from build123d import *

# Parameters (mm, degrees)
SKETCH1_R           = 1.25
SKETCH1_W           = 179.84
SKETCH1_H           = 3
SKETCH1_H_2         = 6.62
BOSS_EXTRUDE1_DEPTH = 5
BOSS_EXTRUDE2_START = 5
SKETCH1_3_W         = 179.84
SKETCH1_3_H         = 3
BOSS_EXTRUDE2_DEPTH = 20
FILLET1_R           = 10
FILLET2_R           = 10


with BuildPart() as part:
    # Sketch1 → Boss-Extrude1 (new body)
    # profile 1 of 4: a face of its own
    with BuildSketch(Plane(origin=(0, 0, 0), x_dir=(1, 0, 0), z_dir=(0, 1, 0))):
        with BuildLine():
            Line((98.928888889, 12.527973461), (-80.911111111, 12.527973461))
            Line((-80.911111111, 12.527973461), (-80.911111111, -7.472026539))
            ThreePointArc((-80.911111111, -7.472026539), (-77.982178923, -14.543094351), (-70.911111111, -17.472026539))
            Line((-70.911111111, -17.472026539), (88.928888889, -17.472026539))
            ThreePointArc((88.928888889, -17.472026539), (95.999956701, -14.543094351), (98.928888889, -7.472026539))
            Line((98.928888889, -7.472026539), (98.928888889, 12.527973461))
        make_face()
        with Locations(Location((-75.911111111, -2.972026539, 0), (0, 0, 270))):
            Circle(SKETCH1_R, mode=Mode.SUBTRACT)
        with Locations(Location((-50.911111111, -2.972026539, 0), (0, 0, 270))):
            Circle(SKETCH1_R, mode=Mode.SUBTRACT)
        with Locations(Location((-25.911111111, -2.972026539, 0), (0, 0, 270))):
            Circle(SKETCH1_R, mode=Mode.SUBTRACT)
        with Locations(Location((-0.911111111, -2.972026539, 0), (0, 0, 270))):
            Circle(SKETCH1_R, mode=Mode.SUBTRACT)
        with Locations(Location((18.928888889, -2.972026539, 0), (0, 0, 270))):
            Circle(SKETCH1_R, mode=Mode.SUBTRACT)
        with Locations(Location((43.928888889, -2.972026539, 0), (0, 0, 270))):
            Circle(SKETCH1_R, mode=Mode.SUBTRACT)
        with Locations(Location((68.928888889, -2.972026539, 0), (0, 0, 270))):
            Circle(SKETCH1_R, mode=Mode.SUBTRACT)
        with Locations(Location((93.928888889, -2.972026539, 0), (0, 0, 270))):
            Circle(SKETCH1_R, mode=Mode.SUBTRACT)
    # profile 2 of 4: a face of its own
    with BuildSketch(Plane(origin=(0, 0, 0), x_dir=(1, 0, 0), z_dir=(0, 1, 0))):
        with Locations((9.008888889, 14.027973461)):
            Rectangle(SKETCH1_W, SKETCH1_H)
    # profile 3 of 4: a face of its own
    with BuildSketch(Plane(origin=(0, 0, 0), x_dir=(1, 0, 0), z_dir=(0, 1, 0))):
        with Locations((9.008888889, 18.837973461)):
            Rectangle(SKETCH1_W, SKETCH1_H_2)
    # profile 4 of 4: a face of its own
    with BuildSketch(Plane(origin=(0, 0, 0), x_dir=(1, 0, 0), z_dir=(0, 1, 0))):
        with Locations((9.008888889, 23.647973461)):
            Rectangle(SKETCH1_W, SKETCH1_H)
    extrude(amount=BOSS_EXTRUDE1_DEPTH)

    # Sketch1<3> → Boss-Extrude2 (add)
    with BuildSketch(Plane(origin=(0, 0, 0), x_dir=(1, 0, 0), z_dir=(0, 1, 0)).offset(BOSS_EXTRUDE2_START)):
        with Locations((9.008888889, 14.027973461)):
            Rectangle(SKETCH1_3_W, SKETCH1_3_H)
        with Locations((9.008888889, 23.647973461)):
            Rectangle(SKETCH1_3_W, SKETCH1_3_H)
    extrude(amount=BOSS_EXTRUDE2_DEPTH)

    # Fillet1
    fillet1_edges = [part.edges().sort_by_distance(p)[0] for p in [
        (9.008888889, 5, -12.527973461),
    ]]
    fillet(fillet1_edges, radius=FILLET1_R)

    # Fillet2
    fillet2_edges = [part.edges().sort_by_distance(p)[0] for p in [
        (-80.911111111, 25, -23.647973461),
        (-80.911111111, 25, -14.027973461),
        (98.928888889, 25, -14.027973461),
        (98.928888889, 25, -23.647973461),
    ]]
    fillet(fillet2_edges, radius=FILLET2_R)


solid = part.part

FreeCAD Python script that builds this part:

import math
import FreeCAD as App
import Part
import Sketcher
from FreeCAD import Vector
Q = App.Units.Quantity


def edges_at(feature, points):
    """Names of the edges that pass closest to the given points."""
    edges = feature.Shape.Edges
    near = lambda p: min(range(len(edges)), key=lambda i: edges[i].distToShape(Part.Vertex(*p))[0])
    return sorted({f"Edge{near(p) + 1}" for p in points})

doc = App.newDocument("Part")
body = doc.addObject("PartDesign::Body", "Body")

sketch1 = body.newObject("Sketcher::SketchObject", "Sketch")
sketch1.AttachmentSupport = (doc.getObject("XZ_Plane"), [""])
sketch1.MapMode = "FlatFace"
sketch1.addGeometry([
    Part.LineSegment(Vector(98.928889, 7.472027, 0), Vector(98.928889, -25.147973, 0)),
    Part.LineSegment(Vector(98.928889, -25.147973, 0), Vector(-80.911111, -25.147973, 0)),
    Part.LineSegment(Vector(-80.911111, -25.147973, 0), Vector(-80.911111, 7.472027, 0)),
    Part.ArcOfCircle(Part.Circle(Vector(-70.911111, 7.472027, 0), Vector(0, 0, 1), 10), math.radians(90), math.radians(180)),
    Part.LineSegment(Vector(-70.911111, 17.472027, 0), Vector(88.928889, 17.472027, 0)),
    Part.ArcOfCircle(Part.Circle(Vector(88.928889, 7.472027, 0), Vector(0, 0, 1), 10), math.radians(0), math.radians(90)),
    Part.Circle(Vector(-75.911111, 2.972027, 0), Vector(0, 0, 1), 1.25),
    Part.Circle(Vector(-50.911111, 2.972027, 0), Vector(0, 0, 1), 1.25),
    Part.Circle(Vector(-25.911111, 2.972027, 0), Vector(0, 0, 1), 1.25),
    Part.Circle(Vector(-0.911111, 2.972027, 0), Vector(0, 0, 1), 1.25),
    Part.Circle(Vector(18.928889, 2.972027, 0), Vector(0, 0, 1), 1.25),
    Part.Circle(Vector(43.928889, 2.972027, 0), Vector(0, 0, 1), 1.25),
    Part.Circle(Vector(68.928889, 2.972027, 0), Vector(0, 0, 1), 1.25),
    Part.Circle(Vector(93.928889, 2.972027, 0), Vector(0, 0, 1), 1.25),
], False)
sketch1.addConstraint([
    Sketcher.Constraint("Coincident", 0, 2, 1, 1),
    Sketcher.Constraint("Coincident", 1, 2, 2, 1),
    Sketcher.Constraint("Tangent", 2, 2, 3, 2),
    Sketcher.Constraint("Tangent", 3, 1, 4, 1),
    Sketcher.Constraint("Tangent", 4, 2, 5, 2),
    Sketcher.Constraint("Tangent", 5, 1, 0, 1),
    Sketcher.Constraint("Vertical", 0),
    Sketcher.Constraint("Horizontal", 1),
    Sketcher.Constraint("Vertical", 2),
    Sketcher.Constraint("Horizontal", 4),
    Sketcher.Constraint("Equal", 3, 5),
    Sketcher.Constraint("Equal", 6, 7),
    Sketcher.Constraint("Equal", 7, 8),
    Sketcher.Constraint("Equal", 8, 9),
    Sketcher.Constraint("Equal", 9, 10),
    Sketcher.Constraint("Equal", 10, 11),
    Sketcher.Constraint("Equal", 11, 12),
    Sketcher.Constraint("Equal", 12, 13),
    Sketcher.Constraint("Horizontal", 6, 3, 7, 3),
    Sketcher.Constraint("Horizontal", 7, 3, 8, 3),
    Sketcher.Constraint("Horizontal", 8, 3, 9, 3),
    Sketcher.Constraint("Horizontal", 9, 3, 10, 3),
    Sketcher.Constraint("Horizontal", 10, 3, 11, 3),
    Sketcher.Constraint("Horizontal", 11, 3, 12, 3),
    Sketcher.Constraint("Horizontal", 12, 3, 13, 3),
    Sketcher.Constraint("Radius", 3, Q("10 mm")),
    Sketcher.Constraint("Diameter", 6, Q("2.5 mm")),
    Sketcher.Constraint("DistanceX", 6, 3, 3, 3, Q("5 mm")),
    Sketcher.Constraint("DistanceX", 3, 3, 7, 3, Q("20 mm")),
    Sketcher.Constraint("DistanceX", 7, 3, 8, 3, Q("25 mm")),
    Sketcher.Constraint("DistanceX", 8, 3, 9, 3, Q("25 mm")),
    Sketcher.Constraint("DistanceX", 10, 3, 5, 3, Q("70 mm")),
    Sketcher.Constraint("DistanceX", 10, 3, 11, 3, Q("25 mm")),
    Sketcher.Constraint("DistanceX", 12, 3, 5, 3, Q("20 mm")),
    Sketcher.Constraint("DistanceX", 5, 3, 13, 3, Q("5 mm")),
    Sketcher.Constraint("DistanceX", 1, 2, 1, 1, Q("179.84 mm")),
    Sketcher.Constraint("DistanceY", 0, 2, 0, 1, Q("32.62 mm")),
    Sketcher.Constraint("DistanceY", 6, 3, 3, 3, Q("4.5 mm")),
    Sketcher.Constraint("DistanceX", 3, 3, -1, 1, Q("70.911111 mm")),
    Sketcher.Constraint("DistanceY", -1, 1, 3, 3, Q("7.472027 mm")),
])
pad1 = body.newObject("PartDesign::Pad", "Pad")
pad1.Profile = sketch1
pad1.Length = 5
pad1.Reversed = True

sketch2 = body.newObject("Sketcher::SketchObject", "Sketch001")
sketch2.AttachmentSupport = (doc.getObject("XZ_Plane"), [""])
sketch2.MapMode = "FlatFace"
sketch2.AttachmentOffset = App.Placement(Vector(0, 0, -5), App.Rotation())
sketch2.addGeometry([
    Part.LineSegment(Vector(-80.911111, -15.527973, 0), Vector(-80.911111, -12.527973, 0)),
    Part.LineSegment(Vector(-80.911111, -12.527973, 0), Vector(98.928889, -12.527973, 0)),
    Part.LineSegment(Vector(98.928889, -12.527973, 0), Vector(98.928889, -15.527973, 0)),
    Part.LineSegment(Vector(98.928889, -15.527973, 0), Vector(-80.911111, -15.527973, 0)),
    Part.LineSegment(Vector(-80.911111, -25.147973, 0), Vector(-80.911111, -22.147973, 0)),
    Part.LineSegment(Vector(-80.911111, -22.147973, 0), Vector(98.928889, -22.147973, 0)),
    Part.LineSegment(Vector(98.928889, -22.147973, 0), Vector(98.928889, -25.147973, 0)),
    Part.LineSegment(Vector(98.928889, -25.147973, 0), Vector(-80.911111, -25.147973, 0)),
], False)
sketch2.addConstraint([
    Sketcher.Constraint("Coincident", 0, 2, 1, 1),
    Sketcher.Constraint("Coincident", 1, 2, 2, 1),
    Sketcher.Constraint("Coincident", 2, 2, 3, 1),
    Sketcher.Constraint("Coincident", 3, 2, 0, 1),
    Sketcher.Constraint("Coincident", 4, 2, 5, 1),
    Sketcher.Constraint("Coincident", 5, 2, 6, 1),
    Sketcher.Constraint("Coincident", 6, 2, 7, 1),
    Sketcher.Constraint("Coincident", 7, 2, 4, 1),
    Sketcher.Constraint("Vertical", 0),
    Sketcher.Constraint("Horizontal", 1),
    Sketcher.Constraint("Vertical", 2),
    Sketcher.Constraint("Horizontal", 3),
    Sketcher.Constraint("Vertical", 4),
    Sketcher.Constraint("Horizontal", 5),
    Sketcher.Constraint("Vertical", 6),
    Sketcher.Constraint("Horizontal", 7),
    Sketcher.Constraint("Vertical", 3, 2, 4, 2),
    Sketcher.Constraint("Vertical", 2, 2, 5, 2),
    Sketcher.Constraint("Equal", 2, 4),
    Sketcher.Constraint("DistanceY", 0, 1, 0, 2, Q("3 mm")),
    Sketcher.Constraint("DistanceX", 1, 1, 1, 2, Q("179.84 mm")),
    Sketcher.Constraint("DistanceY", 4, 2, 3, 2, Q("6.62 mm")),
    Sketcher.Constraint("DistanceX", 0, 2, -1, 1, Q("80.911111 mm")),
    Sketcher.Constraint("DistanceY", 0, 2, -1, 1, Q("12.527973 mm")),
])
pad2 = body.newObject("PartDesign::Pad", "Pad001")
pad2.Profile = sketch2
pad2.Length = 20
pad2.Reversed = True
doc.recompute()

fillet = body.newObject("PartDesign::Fillet", "Fillet")
fillet.Base = (pad2, edges_at(pad2, [(9.009, 5, -12.528)]))
fillet.Radius = 10
doc.recompute()

fillet2 = body.newObject("PartDesign::Fillet", "Fillet001")
fillet2.Base = (fillet, edges_at(fillet, [
    (-80.911, 25, -23.648),
    (-80.911, 25, -14.028),
    (98.929, 25, -14.028),
    (98.929, 25, -23.648),
]))
fillet2.Radius = 10

doc.recompute()
